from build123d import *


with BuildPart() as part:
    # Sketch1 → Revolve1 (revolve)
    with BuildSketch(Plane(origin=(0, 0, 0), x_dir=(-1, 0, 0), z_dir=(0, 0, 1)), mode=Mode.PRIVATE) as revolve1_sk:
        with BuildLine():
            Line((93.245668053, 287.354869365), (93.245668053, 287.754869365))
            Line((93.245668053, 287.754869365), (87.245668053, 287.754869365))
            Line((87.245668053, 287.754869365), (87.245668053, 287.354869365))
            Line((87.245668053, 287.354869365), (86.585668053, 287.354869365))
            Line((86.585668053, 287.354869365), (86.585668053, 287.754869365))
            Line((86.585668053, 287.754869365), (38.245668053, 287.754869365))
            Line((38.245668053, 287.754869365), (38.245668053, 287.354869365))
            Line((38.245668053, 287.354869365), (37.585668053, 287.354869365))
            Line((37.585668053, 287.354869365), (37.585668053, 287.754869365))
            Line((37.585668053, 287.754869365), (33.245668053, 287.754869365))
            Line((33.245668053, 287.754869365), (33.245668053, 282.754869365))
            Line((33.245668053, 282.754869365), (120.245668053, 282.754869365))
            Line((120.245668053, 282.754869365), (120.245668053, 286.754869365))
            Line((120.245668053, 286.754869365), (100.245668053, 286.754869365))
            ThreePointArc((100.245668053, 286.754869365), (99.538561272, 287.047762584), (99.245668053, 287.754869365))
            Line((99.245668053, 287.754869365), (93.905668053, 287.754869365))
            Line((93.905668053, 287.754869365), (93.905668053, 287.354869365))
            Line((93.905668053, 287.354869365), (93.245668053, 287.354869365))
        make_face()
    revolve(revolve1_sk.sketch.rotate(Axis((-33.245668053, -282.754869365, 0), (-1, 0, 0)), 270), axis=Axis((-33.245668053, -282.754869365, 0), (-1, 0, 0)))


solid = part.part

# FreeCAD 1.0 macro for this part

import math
import FreeCAD as App
import Part
import Sketcher

V = App.Vector

doc = App.newDocument("Part")
body = doc.addObject("PartDesign::Body", "Body")

sketch1 = doc.addObject("Sketcher::SketchObject", "Sketch")
body.addObject(sketch1)
sketch1.AttachmentSupport = (doc.XY_Plane, [""])
sketch1.MapMode = "FlatFace"
sketch1.addGeometry([
    Part.LineSegment(V(-93.25, -287.35, 0), V(-93.25, -287.75, 0)),
    Part.LineSegment(V(-93.25, -287.75, 0), V(-87.25, -287.75, 0)),
    Part.LineSegment(V(-87.25, -287.75, 0), V(-87.25, -287.35, 0)),
    Part.LineSegment(V(-87.25, -287.35, 0), V(-86.59, -287.35, 0)),
    Part.LineSegment(V(-86.59, -287.35, 0), V(-86.59, -287.75, 0)),
    Part.LineSegment(V(-86.59, -287.75, 0), V(-38.25, -287.75, 0)),
    Part.LineSegment(V(-38.25, -287.75, 0), V(-38.25, -287.35, 0)),
    Part.LineSegment(V(-38.25, -287.35, 0), V(-37.59, -287.35, 0)),
    Part.LineSegment(V(-37.59, -287.35, 0), V(-37.59, -287.75, 0)),
    Part.LineSegment(V(-37.59, -287.75, 0), V(-33.25, -287.75, 0)),
    Part.LineSegment(V(-33.25, -287.75, 0), V(-33.25, -282.75, 0)),
    Part.LineSegment(V(-33.25, -282.75, 0), V(-120.25, -282.75, 0)),
    Part.LineSegment(V(-120.25, -282.75, 0), V(-120.25, -286.75, 0)),
    Part.LineSegment(V(-120.25, -286.75, 0), V(-100.25, -286.75, 0)),
    Part.ArcOfCircle(Part.Circle(V(-100.25, -287.75, 0), V(0, 0, 1), 1), math.radians(0), math.radians(90)),
    Part.LineSegment(V(-99.25, -287.75, 0), V(-93.91, -287.75, 0)),
    Part.LineSegment(V(-93.91, -287.75, 0), V(-93.91, -287.35, 0)),
    Part.LineSegment(V(-93.91, -287.35, 0), V(-93.25, -287.35, 0)),
], False)
sketch1.addGeometry(Part.LineSegment(V(-33.25, -282.75, 0), V(-120.25, -282.75, 0)), True)
sketch1.addConstraint([
    Sketcher.Constraint("Coincident", 0, 2, 1, 1),
    Sketcher.Constraint("Coincident", 1, 2, 2, 1),
    Sketcher.Constraint("Coincident", 2, 2, 3, 1),
    Sketcher.Constraint("Coincident", 3, 2, 4, 1),
    Sketcher.Constraint("Coincident", 4, 2, 5, 1),
    Sketcher.Constraint("Coincident", 5, 2, 6, 1),
    Sketcher.Constraint("Coincident", 6, 2, 7, 1),
    Sketcher.Constraint("Coincident", 7, 2, 8, 1),
    Sketcher.Constraint("Coincident", 8, 2, 9, 1),
    Sketcher.Constraint("Coincident", 9, 2, 10, 1),
    Sketcher.Constraint("Coincident", 10, 2, 11, 1),
    Sketcher.Constraint("Coincident", 11, 2, 12, 1),
    Sketcher.Constraint("Coincident", 12, 2, 13, 1),
    Sketcher.Constraint("Tangent", 13, 2, 14, 2),
    Sketcher.Constraint("Coincident", 14, 1, 15, 1),
    Sketcher.Constraint("Coincident", 15, 2, 16, 1),
    Sketcher.Constraint("Coincident", 16, 2, 17, 1),
    Sketcher.Constraint("Coincident", 17, 2, 0, 1),
    Sketcher.Constraint("Vertical", 0),
    Sketcher.Constraint("Horizontal", 1),
    Sketcher.Constraint("Vertical", 2),
    Sketcher.Constraint("Horizontal", 3),
    Sketcher.Constraint("Vertical", 4),
    Sketcher.Constraint("Horizontal", 5),
    Sketcher.Constraint("Vertical", 6),
    Sketcher.Constraint("Horizontal", 7),
    Sketcher.Constraint("Vertical", 8),
    Sketcher.Constraint("Horizontal", 9),
    Sketcher.Constraint("Vertical", 10),
    Sketcher.Constraint("Horizontal", 11),
    Sketcher.Constraint("Vertical", 12),
    Sketcher.Constraint("Horizontal", 13),
    Sketcher.Constraint("Horizontal", 15),
    Sketcher.Constraint("Vertical", 16),
    Sketcher.Constraint("Horizontal", 17),
    Sketcher.Constraint("Horizontal", 18),
    Sketcher.Constraint("Coincident", 18, 1, 10, 2),
    Sketcher.Constraint("Horizontal", 14, 3, 0, 2),
    Sketcher.Constraint("Horizontal", 1, 2, 4, 2),
    Sketcher.Constraint("Horizontal", 3, 2, 6, 2),
    Sketcher.Constraint("Horizontal", 5, 2, 8, 2),
    Sketcher.Constraint("Horizontal", 9, 2, 14, 1),
    Sketcher.Constraint("Horizontal", 7, 2, 16, 2),
    Sketcher.Constraint("Vertical", 12, 2, 18, 2),
    Sketcher.Constraint("Equal", 3, 7),
    Sketcher.Constraint("Equal", 7, 17),
    Sketcher.Constraint("Radius", 14, 1.0),
    Sketcher.Constraint("DistanceX", 1, 1, 1, 2, 6.0),
    Sketcher.Constraint("DistanceX", 11, 2, 11, 1, 87.0),
    Sketcher.Constraint("DistanceX", 13, 1, 13, 2, 20.0),
    Sketcher.Constraint("DistanceY", 10, 1, 10, 2, 5.0),
    Sketcher.Constraint("DistanceY", 0, 2, 0, 1, 0.4),
    Sketcher.Constraint("DistanceX", 14, 3, 0, 2, 7.0),
    Sketcher.Constraint("DistanceX", 1, 2, 5, 2, 49.0),
    Sketcher.Constraint("DistanceX", 3, 1, 3, 2, 0.66),
    Sketcher.Constraint("DistanceX", 14, 3, -1, 1, 100.245668),
    Sketcher.Constraint("DistanceY", 14, 3, -1, 1, 287.754869),
])
revolution = doc.addObject("PartDesign::Revolution", "Revolution")
body.addObject(revolution)
revolution.Profile = sketch1
revolution.ReferenceAxis = (sketch1, ["Axis0"])
revolution.Angle = 360

doc.recompute()
